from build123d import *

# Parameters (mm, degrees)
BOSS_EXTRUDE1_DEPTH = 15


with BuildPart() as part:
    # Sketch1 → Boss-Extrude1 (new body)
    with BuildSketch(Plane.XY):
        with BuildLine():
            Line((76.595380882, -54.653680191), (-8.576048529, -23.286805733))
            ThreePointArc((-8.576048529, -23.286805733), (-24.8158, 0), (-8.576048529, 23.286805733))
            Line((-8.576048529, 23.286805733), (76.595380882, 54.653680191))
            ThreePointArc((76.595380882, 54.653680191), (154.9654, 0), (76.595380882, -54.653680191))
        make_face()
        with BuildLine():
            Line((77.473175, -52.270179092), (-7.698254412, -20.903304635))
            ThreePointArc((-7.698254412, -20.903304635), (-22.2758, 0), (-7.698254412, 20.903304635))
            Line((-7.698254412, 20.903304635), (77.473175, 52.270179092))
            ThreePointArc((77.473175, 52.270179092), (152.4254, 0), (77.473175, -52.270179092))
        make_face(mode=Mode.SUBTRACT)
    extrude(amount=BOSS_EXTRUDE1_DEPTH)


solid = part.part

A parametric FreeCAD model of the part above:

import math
import FreeCAD as App
import Part
import Sketcher
from FreeCAD import Vector
Q = App.Units.Quantity

doc = App.newDocument("Part")
body = doc.addObject("PartDesign::Body", "Body")

# Sketch on XY plane
sketch1 = body.newObject("Sketcher::SketchObject", "Sketch")
sketch1.AttachmentSupport = (doc.getObject("XY_Plane"), [""])
sketch1.MapMode = "FlatFace"
sketch1.addGeometry(Part.LineSegment(Vector(-8.576049, -23.286806, 0), Vector(76.595381, -54.65368, 0)), False)
sketch1.addGeometry(Part.ArcOfCircle(Part.Circle(Vector(96.7232, 0, 0), Vector(0, 0, 1), 58.2422), math.radians(-110.217708), math.radians(110.217708)), False)
sketch1.addGeometry(Part.LineSegment(Vector(76.595381, 54.65368, 0), Vector(-8.576049, 23.286806, 0)), False)
sketch1.addGeometry(Part.ArcOfCircle(Part.Circle(Vector(0, 0, 0), Vector(0, 0, 1), 24.8158), math.radians(110.217708), math.radians(249.782292)), False)
sketch1.addGeometry(Part.LineSegment(Vector(77.473175, -52.270179, 0), Vector(-7.698254, -20.903305, 0)), False)
sketch1.addGeometry(Part.ArcOfCircle(Part.Circle(Vector(0, 0, 0), Vector(0, 0, 1), 22.2758), math.radians(110.217708), math.radians(249.782292)), False)
sketch1.addGeometry(Part.LineSegment(Vector(-7.698254, 20.903305, 0), Vector(77.473175, 52.270179, 0)), False)
sketch1.addGeometry(Part.ArcOfCircle(Part.Circle(Vector(96.7232, 0, 0), Vector(0, 0, 1), 55.7022), math.radians(-110.217708), math.radians(110.217708)), False)
sketch1.addConstraint(Sketcher.Constraint("Tangent", 0, 2, 1, 1))
sketch1.addConstraint(Sketcher.Constraint("Tangent", 1, 2, 2, 1))
sketch1.addConstraint(Sketcher.Constraint("Tangent", 2, 2, 3, 1))
sketch1.addConstraint(Sketcher.Constraint("Tangent", 3, 2, 0, 1))
sketch1.addConstraint(Sketcher.Constraint("Tangent", 4, 2, 5, 2))
sketch1.addConstraint(Sketcher.Constraint("Tangent", 5, 1, 6, 1))
sketch1.addConstraint(Sketcher.Constraint("Tangent", 6, 2, 7, 2))
sketch1.addConstraint(Sketcher.Constraint("Tangent", 7, 1, 4, 1))
sketch1.addConstraint(Sketcher.Constraint("Coincident", 3, 3, -1, 1))
sketch1.addConstraint(Sketcher.Constraint("Coincident", 5, 3, -1, 1))
sketch1.addConstraint(Sketcher.Constraint("Coincident", 7, 3, 1, 3))
sketch1.addConstraint(Sketcher.Constraint("PointOnObject", 1, 3, -1))
sketch1.addConstraint(Sketcher.Constraint("Parallel", 0, 4))
sketch1.addConstraint(Sketcher.Constraint("Radius", 1, Q("2.293 in")))
sketch1.addConstraint(Sketcher.Constraint("Radius", 3, Q("0.977 in")))
sketch1.addConstraint(Sketcher.Constraint("Radius", 5, Q("0.877 in")))
sketch1.addConstraint(Sketcher.Constraint("DistanceX", -1, 1, 1, 3, Q("3.808 in")))
pad1 = body.newObject("PartDesign::Pad", "Pad")
pad1.Profile = sketch1
pad1.Length = 15

doc.recompute()
